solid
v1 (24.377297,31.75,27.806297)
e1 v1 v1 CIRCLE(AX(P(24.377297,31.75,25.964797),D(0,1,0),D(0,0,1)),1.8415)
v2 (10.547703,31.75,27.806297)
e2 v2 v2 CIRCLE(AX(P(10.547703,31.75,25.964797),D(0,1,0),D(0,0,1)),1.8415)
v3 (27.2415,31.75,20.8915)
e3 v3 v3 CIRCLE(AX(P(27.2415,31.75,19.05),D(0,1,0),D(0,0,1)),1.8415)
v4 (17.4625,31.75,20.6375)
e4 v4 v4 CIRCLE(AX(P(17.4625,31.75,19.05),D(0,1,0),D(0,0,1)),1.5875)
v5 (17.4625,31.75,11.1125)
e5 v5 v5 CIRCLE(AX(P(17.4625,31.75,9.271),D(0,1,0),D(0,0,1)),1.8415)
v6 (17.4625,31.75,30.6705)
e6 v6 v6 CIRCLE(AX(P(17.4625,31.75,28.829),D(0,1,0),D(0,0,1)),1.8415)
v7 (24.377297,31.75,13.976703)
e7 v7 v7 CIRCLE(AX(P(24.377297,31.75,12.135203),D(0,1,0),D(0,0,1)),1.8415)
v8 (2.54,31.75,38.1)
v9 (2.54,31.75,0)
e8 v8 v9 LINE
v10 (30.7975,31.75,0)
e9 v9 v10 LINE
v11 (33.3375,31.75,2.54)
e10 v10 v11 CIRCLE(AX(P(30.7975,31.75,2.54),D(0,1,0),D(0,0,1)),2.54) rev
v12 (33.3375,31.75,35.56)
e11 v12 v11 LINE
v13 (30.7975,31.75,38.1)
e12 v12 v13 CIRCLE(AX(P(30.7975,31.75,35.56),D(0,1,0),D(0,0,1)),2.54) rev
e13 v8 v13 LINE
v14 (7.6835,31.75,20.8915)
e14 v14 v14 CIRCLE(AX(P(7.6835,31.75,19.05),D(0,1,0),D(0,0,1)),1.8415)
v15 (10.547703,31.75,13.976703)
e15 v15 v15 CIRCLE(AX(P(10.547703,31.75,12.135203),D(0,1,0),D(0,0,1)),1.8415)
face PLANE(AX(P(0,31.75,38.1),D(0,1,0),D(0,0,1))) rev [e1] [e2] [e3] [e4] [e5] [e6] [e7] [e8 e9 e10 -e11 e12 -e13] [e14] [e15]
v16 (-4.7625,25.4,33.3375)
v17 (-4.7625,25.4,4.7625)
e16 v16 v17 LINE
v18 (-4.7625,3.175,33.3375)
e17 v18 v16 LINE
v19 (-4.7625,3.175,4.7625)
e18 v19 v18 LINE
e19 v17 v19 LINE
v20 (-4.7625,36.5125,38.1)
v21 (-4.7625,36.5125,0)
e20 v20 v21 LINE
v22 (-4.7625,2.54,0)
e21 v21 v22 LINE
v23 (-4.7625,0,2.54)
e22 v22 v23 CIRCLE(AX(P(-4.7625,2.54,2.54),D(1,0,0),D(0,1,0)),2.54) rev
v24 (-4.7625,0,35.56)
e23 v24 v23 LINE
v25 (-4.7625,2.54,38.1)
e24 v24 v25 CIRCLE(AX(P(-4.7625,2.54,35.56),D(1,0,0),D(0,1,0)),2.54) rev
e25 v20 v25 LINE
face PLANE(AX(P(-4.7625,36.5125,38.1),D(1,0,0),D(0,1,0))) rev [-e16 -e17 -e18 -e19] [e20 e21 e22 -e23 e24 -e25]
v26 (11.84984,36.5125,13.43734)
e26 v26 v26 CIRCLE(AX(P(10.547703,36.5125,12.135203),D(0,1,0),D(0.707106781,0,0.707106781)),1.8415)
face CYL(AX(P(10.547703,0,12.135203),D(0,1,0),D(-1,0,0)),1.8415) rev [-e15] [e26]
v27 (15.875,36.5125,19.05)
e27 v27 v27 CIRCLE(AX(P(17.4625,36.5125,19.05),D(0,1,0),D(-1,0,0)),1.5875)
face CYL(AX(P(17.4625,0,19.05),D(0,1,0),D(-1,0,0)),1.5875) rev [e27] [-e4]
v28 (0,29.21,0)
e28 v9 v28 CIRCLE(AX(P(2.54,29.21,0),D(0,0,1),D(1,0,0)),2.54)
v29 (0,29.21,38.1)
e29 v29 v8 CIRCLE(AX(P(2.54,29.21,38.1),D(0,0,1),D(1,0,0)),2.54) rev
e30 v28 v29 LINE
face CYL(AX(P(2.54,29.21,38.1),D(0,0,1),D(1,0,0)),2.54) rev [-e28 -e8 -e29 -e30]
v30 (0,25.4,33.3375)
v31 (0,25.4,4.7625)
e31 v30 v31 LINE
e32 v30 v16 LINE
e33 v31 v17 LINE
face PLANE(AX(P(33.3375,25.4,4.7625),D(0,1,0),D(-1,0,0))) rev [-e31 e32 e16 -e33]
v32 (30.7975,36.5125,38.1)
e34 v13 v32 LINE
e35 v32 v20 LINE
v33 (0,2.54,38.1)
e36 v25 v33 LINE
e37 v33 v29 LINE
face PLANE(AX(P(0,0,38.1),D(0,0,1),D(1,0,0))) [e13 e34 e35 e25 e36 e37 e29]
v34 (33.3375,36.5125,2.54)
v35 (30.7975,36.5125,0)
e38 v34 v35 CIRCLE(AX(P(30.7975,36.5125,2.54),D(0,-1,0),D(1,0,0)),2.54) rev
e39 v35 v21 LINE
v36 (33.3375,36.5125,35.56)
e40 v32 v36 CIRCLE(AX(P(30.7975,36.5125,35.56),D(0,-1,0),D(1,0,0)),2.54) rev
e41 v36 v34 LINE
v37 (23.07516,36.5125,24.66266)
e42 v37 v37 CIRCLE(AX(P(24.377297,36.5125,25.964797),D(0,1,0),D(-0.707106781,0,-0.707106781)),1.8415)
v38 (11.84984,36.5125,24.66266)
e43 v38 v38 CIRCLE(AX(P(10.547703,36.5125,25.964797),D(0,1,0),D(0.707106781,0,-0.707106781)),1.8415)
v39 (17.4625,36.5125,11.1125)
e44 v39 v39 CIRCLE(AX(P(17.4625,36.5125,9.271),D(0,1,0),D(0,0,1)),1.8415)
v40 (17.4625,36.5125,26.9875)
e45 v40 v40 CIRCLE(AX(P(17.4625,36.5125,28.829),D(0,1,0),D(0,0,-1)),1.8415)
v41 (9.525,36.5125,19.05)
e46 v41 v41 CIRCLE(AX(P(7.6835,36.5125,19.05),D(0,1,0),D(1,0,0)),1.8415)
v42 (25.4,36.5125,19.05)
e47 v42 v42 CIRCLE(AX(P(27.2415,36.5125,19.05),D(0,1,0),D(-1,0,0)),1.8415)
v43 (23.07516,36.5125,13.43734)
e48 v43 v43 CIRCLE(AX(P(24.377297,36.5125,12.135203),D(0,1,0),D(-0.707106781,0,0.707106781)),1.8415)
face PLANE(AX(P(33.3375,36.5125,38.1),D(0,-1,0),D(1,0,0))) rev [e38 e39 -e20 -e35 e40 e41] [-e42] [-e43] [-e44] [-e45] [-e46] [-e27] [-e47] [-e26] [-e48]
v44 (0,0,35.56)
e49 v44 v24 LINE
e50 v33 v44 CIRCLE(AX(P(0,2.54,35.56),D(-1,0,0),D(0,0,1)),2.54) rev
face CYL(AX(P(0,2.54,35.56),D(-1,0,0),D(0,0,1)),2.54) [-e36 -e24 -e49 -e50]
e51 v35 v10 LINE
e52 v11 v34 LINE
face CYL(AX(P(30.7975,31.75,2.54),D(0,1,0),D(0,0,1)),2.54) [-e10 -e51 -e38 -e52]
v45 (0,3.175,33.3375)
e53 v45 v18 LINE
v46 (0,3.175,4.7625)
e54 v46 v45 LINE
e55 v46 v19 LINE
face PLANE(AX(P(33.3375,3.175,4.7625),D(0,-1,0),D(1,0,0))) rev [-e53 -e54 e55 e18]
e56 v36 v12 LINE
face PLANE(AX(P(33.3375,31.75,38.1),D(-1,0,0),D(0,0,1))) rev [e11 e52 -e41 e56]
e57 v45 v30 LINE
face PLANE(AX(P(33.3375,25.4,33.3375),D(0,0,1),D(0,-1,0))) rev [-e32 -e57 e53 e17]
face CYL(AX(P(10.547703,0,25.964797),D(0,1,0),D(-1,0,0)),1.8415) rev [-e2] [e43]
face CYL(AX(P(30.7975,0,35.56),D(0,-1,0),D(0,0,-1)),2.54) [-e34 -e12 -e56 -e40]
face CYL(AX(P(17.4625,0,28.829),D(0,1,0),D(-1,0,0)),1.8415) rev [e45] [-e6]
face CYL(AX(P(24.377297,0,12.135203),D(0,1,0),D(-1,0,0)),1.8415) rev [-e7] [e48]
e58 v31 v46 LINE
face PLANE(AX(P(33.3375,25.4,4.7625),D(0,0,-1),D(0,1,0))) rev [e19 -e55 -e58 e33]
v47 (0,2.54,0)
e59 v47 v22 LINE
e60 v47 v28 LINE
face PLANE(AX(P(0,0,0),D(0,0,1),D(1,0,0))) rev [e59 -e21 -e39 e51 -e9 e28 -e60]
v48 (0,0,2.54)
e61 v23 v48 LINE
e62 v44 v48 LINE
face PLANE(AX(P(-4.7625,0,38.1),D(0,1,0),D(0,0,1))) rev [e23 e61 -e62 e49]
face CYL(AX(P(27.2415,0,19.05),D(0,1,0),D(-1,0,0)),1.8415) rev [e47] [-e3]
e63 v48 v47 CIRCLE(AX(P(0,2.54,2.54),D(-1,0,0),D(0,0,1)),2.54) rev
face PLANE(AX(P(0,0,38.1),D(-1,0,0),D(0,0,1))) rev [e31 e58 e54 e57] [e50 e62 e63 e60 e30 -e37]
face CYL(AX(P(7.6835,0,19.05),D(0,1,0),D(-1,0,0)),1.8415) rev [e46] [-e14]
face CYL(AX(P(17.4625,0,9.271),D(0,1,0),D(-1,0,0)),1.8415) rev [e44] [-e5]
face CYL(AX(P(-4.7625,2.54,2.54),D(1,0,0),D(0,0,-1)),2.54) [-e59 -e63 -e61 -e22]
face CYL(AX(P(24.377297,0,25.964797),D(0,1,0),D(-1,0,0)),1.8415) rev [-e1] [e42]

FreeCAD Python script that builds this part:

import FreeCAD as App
import Part
import Sketcher

V = App.Vector
Q = App.Units.Quantity


def edges_at(feature, points):
    """Names of the edges that pass closest to the given points."""
    edges = feature.Shape.Edges
    near = lambda p: min(range(len(edges)), key=lambda i: edges[i].distToShape(Part.Vertex(*p))[0])
    return sorted({f"Edge{near(p) + 1}" for p in points})

doc = App.newDocument("Part")
body = doc.addObject("PartDesign::Body", "Body")

# Sketch on XY plane
sketch1 = body.newObject("Sketcher::SketchObject", "Sketch")
sketch1.AttachmentSupport = (doc.getObject("XY_Plane"), [""])
sketch1.MapMode = "FlatFace"
sketch1.addGeometry([
    Part.LineSegment(V(0, 0, 0), V(0, 31.75, 0)),  # 0
    Part.LineSegment(V(0, 31.75, 0), V(33.3375, 31.75, 0)),  # 1
    Part.LineSegment(V(33.3375, 31.75, 0), V(33.3375, 36.5125, 0)),  # 2
    Part.LineSegment(V(33.3375, 36.5125, 0), V(-4.7625, 36.5125, 0)),  # 3
    Part.LineSegment(V(-4.7625, 36.5125, 0), V(-4.7625, 0, 0)),  # 4
    Part.LineSegment(V(-4.7625, 0, 0), V(0, 0, 0)),  # 5
], False)
sketch1.addConstraint([
    Sketcher.Constraint("Coincident", 0, 2, 1, 1),
    Sketcher.Constraint("Coincident", 1, 2, 2, 1),
    Sketcher.Constraint("Coincident", 2, 2, 3, 1),
    Sketcher.Constraint("Coincident", 3, 2, 4, 1),
    Sketcher.Constraint("Coincident", 4, 2, 5, 1),
    Sketcher.Constraint("Coincident", 5, 2, 0, 1),
    Sketcher.Constraint("Vertical", 0),
    Sketcher.Constraint("Horizontal", 1),
    Sketcher.Constraint("Vertical", 2),
    Sketcher.Constraint("Horizontal", 3),
    Sketcher.Constraint("Vertical", 4),
    Sketcher.Constraint("Horizontal", 5),
    Sketcher.Constraint("Coincident", 5, 2, -1, 1),
    Sketcher.Constraint("Equal", 5, 2),
    Sketcher.Constraint("DistanceX", 3, 2, 3, 1, Q("1.5 in")),
    Sketcher.Constraint("DistanceY", 0, 1, 0, 2, Q("1.25 in")),
    Sketcher.Constraint("DistanceX", 1, 1, 1, 2, Q("1.3125 in")),
])
pad1 = body.newObject("PartDesign::Pad", "Pad")
pad1.Profile = sketch1
pad1.Length = Q("1.5 in")

# Sketch on YZ plane
sketch2 = body.newObject("Sketcher::SketchObject", "Sketch001")
sketch2.AttachmentSupport = (doc.getObject("YZ_Plane"), [""])
sketch2.MapMode = "FlatFace"
sketch2.AttachmentOffset = App.Placement(V(0, 0, -0.1875 * 25.4), App.Rotation())
sketch2.addGeometry([
    Part.LineSegment(V(25.4, 4.7625, 0), V(3.175, 4.7625, 0)),
    Part.LineSegment(V(3.175, 4.7625, 0), V(3.175, 33.3375, 0)),
    Part.LineSegment(V(3.175, 33.3375, 0), V(25.4, 33.3375, 0)),
    Part.LineSegment(V(25.4, 33.3375, 0), V(25.4, 4.7625, 0)),
], False)
sketch2.addConstraint([
    Sketcher.Constraint("Coincident", 0, 2, 1, 1),
    Sketcher.Constraint("Coincident", 1, 2, 2, 1),
    Sketcher.Constraint("Coincident", 2, 2, 3, 1),
    Sketcher.Constraint("Coincident", 3, 2, 0, 1),
    Sketcher.Constraint("Horizontal", 0),
    Sketcher.Constraint("Vertical", 1),
    Sketcher.Constraint("Horizontal", 2),
    Sketcher.Constraint("Vertical", 3),
    Sketcher.Constraint("DistanceX", -1, 1, 2, 2, Q("1 in")),
    Sketcher.Constraint("DistanceX", 0, 2, 0, 1, Q("0.875 in")),
    Sketcher.Constraint("DistanceY", 1, 1, 1, 2, Q("1.125 in")),
    Sketcher.Constraint("DistanceY", -1, 1, 0, 2, Q("0.1875 in")),
])
pocket1 = body.newObject("PartDesign::Pocket", "Pocket")
pocket1.Profile = sketch2
pocket1.Type = "ThroughAll"
pocket1.Reversed = True

# Sketch on XZ plane
sketch3 = body.newObject("Sketcher::SketchObject", "Sketch002")
sketch3.AttachmentSupport = (doc.getObject("XZ_Plane"), [""])
sketch3.MapMode = "FlatFace"
sketch3.AttachmentOffset = App.Placement(V(0, 0, -1.4375 * 25.4), App.Rotation())
sketch3.addGeometry(Part.Circle(V(17.4625, 19.05, 0), V(0, 0, 1), 1.5875), False)
sketch3.addConstraint([
    Sketcher.Constraint("Diameter", 0, Q("0.125 in")),
    Sketcher.Constraint("DistanceY", -1, 1, 0, 3, Q("0.75 in")),
    Sketcher.Constraint("DistanceX", -1, 1, 0, 3, Q("0.6875 in")),
])
pocket2 = body.newObject("PartDesign::Pocket", "Pocket001")
pocket2.Profile = sketch3
pocket2.Type = "ThroughAll"
pocket2.Reversed = True

# Sketch on XZ plane
sketch4 = body.newObject("Sketcher::SketchObject", "Sketch003")
sketch4.AttachmentSupport = (doc.getObject("XZ_Plane"), [""])
sketch4.MapMode = "FlatFace"
sketch4.AttachmentOffset = App.Placement(V(0, 0, -1.4375 * 25.4), App.Rotation())
sketch4.addGeometry(Part.Circle(V(27.2415, 19.05, 0), V(0, 0, 1), 1.8415), False)
sketch4.addConstraint([
    Sketcher.Constraint("Diameter", 0, Q("0.145 in")),
    Sketcher.Constraint("DistanceY", -1, 1, 0, 3, Q("0.75 in")),
    Sketcher.Constraint("DistanceX", -1, 1, 0, 3, Q("1.0725 in")),
])
pocket3 = body.newObject("PartDesign::Pocket", "Pocket002")
pocket3.Profile = sketch4
pocket3.Type = "ThroughAll"
pocket3.Reversed = True
doc.recompute()

datumline = body.newObject("PartDesign::Line", "DatumLine")
datumline.Placement = App.Placement(V(17.4625, 0, 19.05), App.Rotation(V(0, 0, 1), V(0, 1, 0)))
polarpattern = body.newObject("PartDesign::PolarPattern", "PolarPattern")
polarpattern.Originals = [pocket3]
polarpattern.Axis = (datumline, [""])
polarpattern.Angle = 360
polarpattern.Occurrences = 8
body.Tip = polarpattern
doc.recompute()

fillet = body.newObject("PartDesign::Fillet", "Fillet")
fillet.Base = (polarpattern, edges_at(polarpattern, [(0, 31.75, 19.05)]))
fillet.Radius = Q("0.1 in")
doc.recompute()

fillet2 = body.newObject("PartDesign::Fillet", "Fillet001")
fillet2.Base = (fillet, edges_at(fillet, [
    (33.337, 34.131, 38.1),
    (-2.381, 0, 38.1),
    (33.337, 34.131, 0),
    (-2.381, 0, 0),
]))
fillet2.Radius = Q("0.1 in")

doc.recompute()
